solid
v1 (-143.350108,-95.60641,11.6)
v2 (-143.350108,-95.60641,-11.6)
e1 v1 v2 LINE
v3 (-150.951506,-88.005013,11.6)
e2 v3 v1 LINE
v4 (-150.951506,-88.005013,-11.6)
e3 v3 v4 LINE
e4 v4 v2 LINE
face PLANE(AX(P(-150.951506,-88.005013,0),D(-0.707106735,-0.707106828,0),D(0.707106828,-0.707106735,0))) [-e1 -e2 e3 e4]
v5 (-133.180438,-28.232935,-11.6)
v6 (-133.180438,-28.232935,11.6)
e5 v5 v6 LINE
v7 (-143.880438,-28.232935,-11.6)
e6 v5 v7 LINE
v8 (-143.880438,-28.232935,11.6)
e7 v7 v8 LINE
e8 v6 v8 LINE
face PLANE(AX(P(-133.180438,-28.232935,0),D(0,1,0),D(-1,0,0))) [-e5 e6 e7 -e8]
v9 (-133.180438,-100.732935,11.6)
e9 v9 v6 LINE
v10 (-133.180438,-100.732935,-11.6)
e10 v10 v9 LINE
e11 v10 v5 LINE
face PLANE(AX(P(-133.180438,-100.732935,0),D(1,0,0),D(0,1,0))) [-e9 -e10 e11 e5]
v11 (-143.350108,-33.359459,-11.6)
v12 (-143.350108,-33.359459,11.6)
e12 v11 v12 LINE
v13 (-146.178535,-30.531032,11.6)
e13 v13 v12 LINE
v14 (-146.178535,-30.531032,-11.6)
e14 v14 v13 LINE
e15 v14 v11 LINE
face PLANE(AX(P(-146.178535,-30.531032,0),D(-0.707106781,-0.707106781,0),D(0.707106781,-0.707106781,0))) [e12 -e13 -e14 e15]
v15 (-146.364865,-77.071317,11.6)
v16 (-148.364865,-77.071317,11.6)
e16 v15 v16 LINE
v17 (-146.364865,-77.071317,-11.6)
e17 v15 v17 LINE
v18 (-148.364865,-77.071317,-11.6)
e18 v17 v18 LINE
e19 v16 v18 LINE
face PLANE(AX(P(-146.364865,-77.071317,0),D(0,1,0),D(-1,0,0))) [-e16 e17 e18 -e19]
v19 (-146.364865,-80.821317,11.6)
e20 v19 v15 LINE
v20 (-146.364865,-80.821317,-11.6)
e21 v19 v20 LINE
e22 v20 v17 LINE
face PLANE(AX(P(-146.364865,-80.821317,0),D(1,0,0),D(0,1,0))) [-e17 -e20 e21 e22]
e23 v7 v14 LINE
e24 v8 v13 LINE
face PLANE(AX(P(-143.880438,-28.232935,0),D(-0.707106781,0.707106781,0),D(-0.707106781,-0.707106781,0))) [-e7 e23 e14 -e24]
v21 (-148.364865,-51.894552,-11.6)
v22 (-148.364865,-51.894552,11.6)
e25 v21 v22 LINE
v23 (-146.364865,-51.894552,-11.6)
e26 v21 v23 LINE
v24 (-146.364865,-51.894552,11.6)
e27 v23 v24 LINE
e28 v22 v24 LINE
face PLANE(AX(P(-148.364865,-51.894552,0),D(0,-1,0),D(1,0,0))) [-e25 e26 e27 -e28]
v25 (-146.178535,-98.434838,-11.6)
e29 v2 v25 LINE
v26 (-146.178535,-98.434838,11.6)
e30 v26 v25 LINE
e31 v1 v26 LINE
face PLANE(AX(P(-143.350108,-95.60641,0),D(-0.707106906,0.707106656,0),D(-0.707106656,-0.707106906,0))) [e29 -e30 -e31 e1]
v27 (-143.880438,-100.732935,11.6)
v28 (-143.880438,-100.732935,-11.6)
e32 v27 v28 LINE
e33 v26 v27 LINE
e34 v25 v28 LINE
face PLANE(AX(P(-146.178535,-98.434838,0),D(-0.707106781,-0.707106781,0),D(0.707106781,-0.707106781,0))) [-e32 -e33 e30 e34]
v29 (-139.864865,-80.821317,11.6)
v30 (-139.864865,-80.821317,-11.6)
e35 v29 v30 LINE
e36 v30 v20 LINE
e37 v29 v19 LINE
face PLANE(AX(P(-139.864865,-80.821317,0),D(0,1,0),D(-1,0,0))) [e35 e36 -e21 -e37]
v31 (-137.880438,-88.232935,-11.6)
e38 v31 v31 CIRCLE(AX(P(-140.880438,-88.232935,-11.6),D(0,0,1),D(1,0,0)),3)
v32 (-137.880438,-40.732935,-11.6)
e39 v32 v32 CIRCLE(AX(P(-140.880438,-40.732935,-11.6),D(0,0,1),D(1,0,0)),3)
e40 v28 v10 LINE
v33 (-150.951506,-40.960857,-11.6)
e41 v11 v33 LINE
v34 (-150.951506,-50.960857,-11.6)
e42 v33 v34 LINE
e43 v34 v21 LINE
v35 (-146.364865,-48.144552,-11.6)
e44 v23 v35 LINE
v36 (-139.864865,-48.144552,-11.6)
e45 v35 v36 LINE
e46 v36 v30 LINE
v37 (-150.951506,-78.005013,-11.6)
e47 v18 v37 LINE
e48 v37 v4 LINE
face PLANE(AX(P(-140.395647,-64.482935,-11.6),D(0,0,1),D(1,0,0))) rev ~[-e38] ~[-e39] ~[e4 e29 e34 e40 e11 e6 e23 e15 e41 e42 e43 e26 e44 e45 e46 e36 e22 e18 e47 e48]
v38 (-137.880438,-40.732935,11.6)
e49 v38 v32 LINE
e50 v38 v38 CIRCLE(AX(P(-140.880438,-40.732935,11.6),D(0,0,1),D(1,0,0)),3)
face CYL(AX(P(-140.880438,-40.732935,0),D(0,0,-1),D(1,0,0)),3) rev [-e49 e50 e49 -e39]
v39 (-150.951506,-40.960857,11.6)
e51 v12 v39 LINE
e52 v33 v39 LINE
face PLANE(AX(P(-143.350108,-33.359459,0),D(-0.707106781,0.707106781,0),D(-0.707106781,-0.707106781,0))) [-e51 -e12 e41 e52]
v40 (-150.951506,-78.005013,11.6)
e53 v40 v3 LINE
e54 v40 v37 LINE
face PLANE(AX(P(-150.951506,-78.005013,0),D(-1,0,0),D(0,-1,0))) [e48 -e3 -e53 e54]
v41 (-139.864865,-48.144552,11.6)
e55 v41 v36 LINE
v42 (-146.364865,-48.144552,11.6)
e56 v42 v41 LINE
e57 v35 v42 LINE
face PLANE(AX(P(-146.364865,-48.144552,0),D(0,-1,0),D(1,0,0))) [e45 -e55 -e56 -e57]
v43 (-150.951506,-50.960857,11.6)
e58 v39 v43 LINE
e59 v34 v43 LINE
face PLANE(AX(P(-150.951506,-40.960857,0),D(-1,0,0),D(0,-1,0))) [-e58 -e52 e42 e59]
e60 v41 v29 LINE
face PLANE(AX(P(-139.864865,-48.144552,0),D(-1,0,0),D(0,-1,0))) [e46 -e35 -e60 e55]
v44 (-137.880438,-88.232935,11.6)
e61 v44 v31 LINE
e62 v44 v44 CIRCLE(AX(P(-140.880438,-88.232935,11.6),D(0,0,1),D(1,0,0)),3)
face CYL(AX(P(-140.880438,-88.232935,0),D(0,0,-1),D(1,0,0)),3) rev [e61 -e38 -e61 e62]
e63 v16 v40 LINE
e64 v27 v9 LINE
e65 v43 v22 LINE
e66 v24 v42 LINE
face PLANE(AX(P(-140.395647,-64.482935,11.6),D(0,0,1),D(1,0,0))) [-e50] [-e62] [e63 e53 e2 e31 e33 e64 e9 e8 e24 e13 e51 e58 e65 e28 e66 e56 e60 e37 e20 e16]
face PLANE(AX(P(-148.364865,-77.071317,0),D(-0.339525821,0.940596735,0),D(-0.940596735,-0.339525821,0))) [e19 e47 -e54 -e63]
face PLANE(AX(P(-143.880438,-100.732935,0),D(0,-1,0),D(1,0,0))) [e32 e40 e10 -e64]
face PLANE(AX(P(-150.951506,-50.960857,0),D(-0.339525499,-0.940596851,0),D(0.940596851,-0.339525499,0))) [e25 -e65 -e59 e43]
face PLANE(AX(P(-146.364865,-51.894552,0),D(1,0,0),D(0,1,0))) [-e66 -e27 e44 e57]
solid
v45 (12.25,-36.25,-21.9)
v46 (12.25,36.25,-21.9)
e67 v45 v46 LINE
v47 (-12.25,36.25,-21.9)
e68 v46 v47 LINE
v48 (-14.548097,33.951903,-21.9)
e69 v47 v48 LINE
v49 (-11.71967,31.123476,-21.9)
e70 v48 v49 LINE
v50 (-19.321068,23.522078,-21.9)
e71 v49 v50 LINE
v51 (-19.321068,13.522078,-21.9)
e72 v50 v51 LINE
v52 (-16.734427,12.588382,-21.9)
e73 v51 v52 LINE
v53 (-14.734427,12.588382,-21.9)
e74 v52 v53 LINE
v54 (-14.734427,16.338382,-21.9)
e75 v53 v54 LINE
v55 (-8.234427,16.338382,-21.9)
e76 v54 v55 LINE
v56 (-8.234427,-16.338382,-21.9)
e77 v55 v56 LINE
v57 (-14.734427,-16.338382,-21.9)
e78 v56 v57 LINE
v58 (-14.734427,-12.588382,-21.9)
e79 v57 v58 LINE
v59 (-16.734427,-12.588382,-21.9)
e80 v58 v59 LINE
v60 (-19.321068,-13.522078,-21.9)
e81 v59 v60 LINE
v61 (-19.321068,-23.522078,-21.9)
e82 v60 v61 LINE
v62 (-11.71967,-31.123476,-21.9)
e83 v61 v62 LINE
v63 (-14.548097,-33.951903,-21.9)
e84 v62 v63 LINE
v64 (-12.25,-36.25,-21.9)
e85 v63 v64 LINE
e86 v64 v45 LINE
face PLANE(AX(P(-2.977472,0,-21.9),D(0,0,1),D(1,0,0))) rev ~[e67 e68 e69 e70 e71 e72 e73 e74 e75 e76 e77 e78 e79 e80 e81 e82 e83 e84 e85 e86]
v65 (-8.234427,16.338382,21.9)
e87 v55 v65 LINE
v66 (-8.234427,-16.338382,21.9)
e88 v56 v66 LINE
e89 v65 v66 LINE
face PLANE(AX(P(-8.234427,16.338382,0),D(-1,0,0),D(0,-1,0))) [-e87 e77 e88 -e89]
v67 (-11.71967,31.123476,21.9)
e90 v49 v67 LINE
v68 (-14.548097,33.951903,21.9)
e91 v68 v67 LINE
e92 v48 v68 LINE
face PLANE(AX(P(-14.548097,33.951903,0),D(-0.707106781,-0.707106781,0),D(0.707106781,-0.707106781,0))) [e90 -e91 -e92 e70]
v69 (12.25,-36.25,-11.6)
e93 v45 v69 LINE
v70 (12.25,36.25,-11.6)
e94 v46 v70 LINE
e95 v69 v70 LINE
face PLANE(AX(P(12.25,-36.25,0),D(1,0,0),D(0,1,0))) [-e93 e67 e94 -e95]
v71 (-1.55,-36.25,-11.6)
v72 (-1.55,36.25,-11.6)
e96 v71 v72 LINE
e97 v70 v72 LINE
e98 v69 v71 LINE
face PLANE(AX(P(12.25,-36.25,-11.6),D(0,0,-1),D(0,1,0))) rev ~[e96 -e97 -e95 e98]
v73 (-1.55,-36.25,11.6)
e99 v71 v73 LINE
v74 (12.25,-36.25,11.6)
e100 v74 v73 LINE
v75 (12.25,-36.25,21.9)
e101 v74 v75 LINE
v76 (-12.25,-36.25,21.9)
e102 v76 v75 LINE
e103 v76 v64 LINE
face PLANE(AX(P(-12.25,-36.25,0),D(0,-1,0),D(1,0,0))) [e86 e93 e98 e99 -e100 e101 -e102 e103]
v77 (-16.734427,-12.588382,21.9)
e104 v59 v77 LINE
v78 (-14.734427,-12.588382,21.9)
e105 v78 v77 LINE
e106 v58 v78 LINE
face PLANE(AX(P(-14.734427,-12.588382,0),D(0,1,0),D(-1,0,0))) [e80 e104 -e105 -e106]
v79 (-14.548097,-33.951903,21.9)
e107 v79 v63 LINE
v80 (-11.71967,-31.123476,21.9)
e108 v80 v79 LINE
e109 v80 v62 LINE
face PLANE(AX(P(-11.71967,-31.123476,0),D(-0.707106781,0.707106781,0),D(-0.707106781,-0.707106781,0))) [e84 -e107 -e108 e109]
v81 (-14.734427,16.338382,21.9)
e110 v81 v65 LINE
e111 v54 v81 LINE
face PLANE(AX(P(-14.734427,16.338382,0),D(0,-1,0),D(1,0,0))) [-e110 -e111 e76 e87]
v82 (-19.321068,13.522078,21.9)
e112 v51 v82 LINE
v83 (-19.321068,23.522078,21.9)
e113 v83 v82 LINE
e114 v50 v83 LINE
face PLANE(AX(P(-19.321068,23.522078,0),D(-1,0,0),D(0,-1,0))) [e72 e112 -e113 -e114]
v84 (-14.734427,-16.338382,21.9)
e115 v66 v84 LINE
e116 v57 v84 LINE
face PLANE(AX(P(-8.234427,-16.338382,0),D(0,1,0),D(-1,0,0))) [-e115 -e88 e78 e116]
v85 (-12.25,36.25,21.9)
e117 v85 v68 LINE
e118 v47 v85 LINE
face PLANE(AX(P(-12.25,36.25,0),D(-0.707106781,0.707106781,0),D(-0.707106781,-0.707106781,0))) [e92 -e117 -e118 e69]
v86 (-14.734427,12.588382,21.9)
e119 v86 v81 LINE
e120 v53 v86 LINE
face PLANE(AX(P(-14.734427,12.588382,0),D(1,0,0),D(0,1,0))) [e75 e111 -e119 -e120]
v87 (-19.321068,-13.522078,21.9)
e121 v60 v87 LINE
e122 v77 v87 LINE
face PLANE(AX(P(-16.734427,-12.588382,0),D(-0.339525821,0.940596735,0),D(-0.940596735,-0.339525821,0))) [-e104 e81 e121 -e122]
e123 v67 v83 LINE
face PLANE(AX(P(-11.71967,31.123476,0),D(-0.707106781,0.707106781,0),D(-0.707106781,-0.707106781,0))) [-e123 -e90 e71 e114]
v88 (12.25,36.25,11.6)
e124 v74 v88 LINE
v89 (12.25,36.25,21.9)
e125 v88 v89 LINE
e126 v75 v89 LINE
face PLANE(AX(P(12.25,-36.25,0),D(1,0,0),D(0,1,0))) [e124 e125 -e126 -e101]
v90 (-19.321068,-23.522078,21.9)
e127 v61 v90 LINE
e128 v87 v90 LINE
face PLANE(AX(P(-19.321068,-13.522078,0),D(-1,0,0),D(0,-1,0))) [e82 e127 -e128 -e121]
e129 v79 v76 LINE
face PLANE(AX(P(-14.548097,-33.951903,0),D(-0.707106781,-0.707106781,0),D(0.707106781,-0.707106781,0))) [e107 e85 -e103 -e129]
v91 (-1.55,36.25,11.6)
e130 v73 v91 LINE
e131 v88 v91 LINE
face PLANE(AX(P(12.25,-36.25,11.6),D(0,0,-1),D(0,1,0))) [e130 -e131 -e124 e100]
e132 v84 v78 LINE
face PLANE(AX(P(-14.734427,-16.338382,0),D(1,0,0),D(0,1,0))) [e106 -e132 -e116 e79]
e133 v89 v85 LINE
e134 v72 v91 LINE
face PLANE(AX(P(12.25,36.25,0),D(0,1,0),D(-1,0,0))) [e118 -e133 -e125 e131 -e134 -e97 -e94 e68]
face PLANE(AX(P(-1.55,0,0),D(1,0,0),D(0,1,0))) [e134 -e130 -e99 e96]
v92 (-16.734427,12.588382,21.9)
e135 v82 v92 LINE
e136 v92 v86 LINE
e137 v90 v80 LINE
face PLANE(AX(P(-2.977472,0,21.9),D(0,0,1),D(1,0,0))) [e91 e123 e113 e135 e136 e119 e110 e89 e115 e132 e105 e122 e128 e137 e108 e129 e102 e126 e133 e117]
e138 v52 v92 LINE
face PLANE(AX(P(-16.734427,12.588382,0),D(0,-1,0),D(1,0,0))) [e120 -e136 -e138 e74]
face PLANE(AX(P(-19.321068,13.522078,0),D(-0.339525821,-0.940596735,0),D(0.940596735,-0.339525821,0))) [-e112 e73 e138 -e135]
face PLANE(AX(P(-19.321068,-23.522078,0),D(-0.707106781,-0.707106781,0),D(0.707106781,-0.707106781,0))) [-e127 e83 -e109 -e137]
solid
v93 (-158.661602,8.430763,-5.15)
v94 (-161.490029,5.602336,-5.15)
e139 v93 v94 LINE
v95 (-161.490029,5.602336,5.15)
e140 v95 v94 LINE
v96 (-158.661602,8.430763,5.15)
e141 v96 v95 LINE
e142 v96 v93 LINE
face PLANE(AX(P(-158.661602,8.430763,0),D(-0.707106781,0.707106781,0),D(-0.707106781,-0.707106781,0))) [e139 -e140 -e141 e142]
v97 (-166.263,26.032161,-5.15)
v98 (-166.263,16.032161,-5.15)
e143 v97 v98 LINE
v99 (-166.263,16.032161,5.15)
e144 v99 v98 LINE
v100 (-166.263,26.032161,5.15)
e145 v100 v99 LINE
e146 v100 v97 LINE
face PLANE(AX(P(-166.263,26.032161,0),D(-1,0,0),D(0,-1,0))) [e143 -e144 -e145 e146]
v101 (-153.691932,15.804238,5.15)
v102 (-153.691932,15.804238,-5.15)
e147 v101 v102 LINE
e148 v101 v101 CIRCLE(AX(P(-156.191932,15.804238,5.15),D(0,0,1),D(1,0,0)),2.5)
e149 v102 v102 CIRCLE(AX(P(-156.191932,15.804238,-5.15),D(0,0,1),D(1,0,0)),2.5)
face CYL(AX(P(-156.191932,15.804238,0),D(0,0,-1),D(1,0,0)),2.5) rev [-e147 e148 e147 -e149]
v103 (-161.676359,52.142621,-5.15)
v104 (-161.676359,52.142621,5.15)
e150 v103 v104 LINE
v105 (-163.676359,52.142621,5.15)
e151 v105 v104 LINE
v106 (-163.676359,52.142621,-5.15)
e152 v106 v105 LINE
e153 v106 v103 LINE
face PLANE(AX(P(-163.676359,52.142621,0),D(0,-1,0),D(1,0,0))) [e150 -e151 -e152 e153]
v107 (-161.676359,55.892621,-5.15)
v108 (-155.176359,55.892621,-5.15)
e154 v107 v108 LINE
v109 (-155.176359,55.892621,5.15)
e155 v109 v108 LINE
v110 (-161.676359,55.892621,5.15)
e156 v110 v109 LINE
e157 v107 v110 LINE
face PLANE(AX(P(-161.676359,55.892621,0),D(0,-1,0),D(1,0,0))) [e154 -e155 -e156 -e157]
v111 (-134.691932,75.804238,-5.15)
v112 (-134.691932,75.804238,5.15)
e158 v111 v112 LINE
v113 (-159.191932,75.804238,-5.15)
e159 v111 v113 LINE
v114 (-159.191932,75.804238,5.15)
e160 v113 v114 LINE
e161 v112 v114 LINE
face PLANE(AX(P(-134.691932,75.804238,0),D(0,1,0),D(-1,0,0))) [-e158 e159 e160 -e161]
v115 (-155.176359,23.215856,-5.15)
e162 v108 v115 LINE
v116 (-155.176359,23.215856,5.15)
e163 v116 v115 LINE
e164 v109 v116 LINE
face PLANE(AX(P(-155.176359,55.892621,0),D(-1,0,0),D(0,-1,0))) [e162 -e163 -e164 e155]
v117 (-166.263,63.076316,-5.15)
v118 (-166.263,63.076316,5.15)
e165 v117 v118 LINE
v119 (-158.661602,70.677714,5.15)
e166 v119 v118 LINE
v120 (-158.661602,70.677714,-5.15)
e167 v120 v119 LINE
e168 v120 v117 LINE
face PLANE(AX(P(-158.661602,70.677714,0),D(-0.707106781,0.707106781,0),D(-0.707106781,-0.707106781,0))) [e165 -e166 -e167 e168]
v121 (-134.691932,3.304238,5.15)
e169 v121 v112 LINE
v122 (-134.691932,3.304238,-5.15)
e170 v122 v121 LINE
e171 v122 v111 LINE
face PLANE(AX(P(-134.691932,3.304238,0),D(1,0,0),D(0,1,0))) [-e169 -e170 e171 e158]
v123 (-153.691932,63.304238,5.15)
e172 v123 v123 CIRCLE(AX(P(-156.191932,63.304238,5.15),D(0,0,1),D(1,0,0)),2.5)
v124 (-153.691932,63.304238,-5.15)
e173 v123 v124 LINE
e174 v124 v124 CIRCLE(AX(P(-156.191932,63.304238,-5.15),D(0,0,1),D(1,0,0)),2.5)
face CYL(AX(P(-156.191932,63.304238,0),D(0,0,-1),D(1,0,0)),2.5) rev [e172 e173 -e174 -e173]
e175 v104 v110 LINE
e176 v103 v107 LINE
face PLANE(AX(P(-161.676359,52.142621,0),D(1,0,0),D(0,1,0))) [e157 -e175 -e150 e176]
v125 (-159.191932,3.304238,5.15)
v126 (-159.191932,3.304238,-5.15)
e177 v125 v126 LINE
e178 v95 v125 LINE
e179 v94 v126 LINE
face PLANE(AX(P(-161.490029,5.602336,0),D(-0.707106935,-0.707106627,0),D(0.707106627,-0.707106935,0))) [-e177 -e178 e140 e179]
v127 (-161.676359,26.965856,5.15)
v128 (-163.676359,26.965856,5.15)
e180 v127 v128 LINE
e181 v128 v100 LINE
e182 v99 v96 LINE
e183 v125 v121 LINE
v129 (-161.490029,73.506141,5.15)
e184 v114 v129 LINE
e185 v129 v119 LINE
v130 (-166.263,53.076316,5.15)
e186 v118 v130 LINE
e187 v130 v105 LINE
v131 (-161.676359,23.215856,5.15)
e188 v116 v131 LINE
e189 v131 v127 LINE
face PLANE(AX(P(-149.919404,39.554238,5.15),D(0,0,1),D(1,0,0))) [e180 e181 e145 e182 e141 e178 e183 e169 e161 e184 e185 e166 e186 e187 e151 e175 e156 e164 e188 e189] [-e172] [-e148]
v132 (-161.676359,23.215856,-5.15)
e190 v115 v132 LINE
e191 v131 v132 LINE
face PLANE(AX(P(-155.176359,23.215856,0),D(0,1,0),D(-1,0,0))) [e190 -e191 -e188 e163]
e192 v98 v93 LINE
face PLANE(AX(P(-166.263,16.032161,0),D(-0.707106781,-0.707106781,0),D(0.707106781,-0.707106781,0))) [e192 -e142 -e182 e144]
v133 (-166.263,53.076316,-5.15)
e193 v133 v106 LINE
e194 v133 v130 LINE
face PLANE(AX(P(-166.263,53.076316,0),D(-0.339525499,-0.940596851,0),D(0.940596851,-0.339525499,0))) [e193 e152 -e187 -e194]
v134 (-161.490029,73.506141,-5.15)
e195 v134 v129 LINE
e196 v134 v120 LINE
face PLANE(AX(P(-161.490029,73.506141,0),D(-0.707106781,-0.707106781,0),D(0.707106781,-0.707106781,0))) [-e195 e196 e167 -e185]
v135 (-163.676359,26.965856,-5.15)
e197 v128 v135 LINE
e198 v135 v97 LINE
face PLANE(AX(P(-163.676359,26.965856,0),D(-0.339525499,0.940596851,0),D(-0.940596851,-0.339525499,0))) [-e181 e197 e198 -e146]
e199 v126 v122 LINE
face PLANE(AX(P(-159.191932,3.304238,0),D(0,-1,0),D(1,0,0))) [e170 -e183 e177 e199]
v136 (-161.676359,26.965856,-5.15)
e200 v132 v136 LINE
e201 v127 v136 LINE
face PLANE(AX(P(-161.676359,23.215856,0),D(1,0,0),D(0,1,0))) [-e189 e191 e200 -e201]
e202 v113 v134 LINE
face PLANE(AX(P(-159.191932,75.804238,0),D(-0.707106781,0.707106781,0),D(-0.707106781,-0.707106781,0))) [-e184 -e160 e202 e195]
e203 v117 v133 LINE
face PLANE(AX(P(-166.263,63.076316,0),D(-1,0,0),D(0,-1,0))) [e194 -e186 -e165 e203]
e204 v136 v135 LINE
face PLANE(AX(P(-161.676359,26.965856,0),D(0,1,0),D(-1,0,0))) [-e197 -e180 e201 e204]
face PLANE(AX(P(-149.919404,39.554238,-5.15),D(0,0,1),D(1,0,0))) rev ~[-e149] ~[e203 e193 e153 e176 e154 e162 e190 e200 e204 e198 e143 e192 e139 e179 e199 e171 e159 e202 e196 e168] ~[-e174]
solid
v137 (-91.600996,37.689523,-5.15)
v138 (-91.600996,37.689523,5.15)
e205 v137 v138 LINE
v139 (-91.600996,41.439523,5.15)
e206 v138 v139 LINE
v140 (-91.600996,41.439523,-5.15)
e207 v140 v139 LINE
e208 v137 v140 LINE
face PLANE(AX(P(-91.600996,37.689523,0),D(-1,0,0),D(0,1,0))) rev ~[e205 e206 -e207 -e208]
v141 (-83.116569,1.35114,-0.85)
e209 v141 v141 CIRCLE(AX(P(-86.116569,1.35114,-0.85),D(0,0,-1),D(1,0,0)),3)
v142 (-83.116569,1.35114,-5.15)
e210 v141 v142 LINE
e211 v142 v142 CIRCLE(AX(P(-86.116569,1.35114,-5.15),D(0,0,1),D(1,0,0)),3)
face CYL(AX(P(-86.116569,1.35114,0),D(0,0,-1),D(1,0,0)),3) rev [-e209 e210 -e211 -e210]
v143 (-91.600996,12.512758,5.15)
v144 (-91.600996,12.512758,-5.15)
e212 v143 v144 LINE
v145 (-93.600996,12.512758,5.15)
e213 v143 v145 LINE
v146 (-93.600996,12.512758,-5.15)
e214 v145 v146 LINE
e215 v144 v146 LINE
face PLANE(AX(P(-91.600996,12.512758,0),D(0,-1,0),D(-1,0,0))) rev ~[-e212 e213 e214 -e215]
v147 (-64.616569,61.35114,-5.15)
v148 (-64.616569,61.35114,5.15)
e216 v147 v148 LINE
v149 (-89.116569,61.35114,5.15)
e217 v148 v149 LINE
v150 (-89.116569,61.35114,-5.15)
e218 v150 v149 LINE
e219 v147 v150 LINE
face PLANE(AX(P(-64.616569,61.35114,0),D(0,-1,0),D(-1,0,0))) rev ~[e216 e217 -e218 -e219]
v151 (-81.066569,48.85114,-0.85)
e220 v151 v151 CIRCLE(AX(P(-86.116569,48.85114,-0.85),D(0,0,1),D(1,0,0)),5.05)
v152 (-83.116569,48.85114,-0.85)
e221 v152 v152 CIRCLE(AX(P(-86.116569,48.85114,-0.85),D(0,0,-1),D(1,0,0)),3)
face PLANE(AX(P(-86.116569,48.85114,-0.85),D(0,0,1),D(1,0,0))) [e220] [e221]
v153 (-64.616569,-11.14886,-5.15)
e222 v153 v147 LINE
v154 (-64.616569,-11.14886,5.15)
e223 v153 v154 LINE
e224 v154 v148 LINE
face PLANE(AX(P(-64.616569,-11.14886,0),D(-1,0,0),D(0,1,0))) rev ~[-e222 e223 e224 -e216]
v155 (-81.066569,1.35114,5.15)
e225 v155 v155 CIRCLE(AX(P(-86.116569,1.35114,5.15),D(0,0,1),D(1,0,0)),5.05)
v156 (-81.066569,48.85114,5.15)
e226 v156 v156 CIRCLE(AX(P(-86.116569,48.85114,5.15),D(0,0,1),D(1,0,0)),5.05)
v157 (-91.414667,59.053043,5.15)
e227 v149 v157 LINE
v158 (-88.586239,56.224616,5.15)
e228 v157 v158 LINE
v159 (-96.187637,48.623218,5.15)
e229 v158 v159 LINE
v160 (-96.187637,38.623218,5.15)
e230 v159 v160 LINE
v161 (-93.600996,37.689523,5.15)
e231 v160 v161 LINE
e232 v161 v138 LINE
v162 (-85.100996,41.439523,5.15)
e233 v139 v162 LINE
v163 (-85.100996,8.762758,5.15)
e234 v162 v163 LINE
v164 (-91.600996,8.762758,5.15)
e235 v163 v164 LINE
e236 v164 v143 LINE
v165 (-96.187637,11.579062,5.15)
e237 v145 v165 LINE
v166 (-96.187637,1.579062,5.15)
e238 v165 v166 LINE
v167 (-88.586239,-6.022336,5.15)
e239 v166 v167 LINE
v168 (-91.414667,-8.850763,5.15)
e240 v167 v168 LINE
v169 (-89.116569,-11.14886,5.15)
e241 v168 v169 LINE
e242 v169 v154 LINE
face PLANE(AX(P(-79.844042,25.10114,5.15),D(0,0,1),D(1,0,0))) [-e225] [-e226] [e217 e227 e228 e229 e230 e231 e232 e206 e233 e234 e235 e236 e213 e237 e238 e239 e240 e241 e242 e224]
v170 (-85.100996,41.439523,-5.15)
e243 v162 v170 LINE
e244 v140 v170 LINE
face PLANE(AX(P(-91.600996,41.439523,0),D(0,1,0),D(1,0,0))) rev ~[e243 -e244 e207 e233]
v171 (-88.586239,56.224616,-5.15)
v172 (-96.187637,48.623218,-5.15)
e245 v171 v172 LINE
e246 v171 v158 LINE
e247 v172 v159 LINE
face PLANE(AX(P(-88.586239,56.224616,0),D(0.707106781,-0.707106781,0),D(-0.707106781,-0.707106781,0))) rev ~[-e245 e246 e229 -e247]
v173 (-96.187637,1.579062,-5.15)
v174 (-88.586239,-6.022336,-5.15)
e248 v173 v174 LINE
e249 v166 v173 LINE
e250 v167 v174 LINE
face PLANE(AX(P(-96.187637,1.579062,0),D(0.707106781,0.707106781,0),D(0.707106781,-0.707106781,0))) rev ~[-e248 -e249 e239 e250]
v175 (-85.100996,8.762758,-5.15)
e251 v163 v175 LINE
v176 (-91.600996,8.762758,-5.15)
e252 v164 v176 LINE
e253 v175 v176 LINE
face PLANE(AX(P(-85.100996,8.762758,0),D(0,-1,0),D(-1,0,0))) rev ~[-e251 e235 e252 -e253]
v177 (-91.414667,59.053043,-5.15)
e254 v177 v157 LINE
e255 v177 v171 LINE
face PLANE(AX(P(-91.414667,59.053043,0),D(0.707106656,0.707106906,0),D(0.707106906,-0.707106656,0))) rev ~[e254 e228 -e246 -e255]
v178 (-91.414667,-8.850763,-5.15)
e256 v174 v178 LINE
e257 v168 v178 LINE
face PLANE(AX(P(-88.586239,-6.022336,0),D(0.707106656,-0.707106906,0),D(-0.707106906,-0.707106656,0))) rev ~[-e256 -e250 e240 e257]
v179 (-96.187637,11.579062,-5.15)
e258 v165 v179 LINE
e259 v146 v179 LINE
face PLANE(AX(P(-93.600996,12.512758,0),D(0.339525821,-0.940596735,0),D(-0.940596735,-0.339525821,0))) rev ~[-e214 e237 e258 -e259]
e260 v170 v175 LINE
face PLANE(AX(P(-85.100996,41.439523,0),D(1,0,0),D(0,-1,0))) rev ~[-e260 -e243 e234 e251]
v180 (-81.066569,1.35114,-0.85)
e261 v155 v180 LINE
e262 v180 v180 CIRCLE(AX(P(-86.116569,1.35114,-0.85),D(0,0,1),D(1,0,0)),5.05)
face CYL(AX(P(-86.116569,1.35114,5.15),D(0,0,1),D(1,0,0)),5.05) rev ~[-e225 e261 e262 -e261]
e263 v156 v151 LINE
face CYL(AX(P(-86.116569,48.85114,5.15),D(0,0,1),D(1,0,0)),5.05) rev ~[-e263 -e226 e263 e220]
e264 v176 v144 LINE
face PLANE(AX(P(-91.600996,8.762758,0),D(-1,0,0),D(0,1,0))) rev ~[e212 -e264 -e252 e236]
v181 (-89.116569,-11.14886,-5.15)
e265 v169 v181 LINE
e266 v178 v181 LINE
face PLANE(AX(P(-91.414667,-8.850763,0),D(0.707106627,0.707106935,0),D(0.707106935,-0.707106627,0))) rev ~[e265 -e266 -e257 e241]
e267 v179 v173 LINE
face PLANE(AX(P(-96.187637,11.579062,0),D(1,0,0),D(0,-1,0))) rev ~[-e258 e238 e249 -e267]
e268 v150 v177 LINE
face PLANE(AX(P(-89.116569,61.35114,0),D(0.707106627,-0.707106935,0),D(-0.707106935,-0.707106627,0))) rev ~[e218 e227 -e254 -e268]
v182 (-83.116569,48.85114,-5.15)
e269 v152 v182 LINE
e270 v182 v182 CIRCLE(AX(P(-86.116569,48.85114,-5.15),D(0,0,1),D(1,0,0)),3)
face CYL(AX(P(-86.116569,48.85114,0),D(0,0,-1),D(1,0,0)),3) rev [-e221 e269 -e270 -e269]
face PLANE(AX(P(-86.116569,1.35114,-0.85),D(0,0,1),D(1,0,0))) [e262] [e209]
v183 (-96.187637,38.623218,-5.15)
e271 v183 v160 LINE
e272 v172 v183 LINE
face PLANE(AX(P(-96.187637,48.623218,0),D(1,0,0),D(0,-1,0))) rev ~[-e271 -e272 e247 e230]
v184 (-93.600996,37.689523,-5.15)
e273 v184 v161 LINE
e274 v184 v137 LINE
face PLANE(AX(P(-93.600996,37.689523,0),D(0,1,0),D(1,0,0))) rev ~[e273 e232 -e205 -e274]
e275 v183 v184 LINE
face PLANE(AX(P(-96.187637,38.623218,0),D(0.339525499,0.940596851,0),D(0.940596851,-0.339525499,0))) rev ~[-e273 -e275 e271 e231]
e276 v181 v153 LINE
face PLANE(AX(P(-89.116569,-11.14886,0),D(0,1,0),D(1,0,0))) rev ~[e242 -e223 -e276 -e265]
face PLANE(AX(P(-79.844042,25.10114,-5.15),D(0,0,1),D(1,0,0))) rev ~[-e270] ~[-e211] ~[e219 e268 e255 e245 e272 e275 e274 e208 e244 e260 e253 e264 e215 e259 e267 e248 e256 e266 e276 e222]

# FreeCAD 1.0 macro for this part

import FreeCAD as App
import Part
import Sketcher
from FreeCAD import Vector
Q = App.Units.Quantity

doc = App.newDocument("Part")
params = doc.addObject("Spreadsheet::Sheet", "Params")
for row, (alias, value) in enumerate([
    ("sketch1_width", "2 mm"),
    ("sketch1_height", "10 mm"),
    ("sketch1_length", "4 mm"),
    ("sketch1_width2", "24.5 mm"),
    ("sketch1_width3", "6.5 mm"),
    ("pad1_length", "43.8 mm"),
    ("sketch2_width", "72.5 mm"),
    ("sketch2_height", "23.2 mm"),
    ("pocket1_length", "13.8 mm"),
    ("sketch3_diameter", "6 mm"),
    ("sketch3_diameter2", "5 mm"),
    ("sketch3_width", "2 mm"),
    ("sketch3_height", "10 mm"),
    ("sketch3_length", "4.000001 mm"),
    ("pad2_length", "10.3 mm"),
    ("sketch4_diameter", "10.1 mm"),
    ("pocket2_length", "6 mm"),
    ("sketch5_diameter", "6 mm"),
    ("sketch5_width", "2 mm"),
    ("sketch5_height", "10 mm"),
    ("sketch5_length", "4 mm"),
    ("sketch5_width2", "10.7 mm"),
    ("pad3_length", "23.2 mm"),
], start=1):
    params.set(f"A{row}", alias)
    params.set(f"B{row}", "=" + value)
    params.setAlias(f"B{row}", alias)

body = doc.addObject("PartDesign::Body", "Body")

# Sketch on XY plane
sketch1 = body.newObject("Sketcher::SketchObject", "Sketch")
sketch1.AttachmentSupport = (doc.getObject("XY_Plane"), [""])
sketch1.MapMode = "FlatFace"
sketch1.addGeometry([
    Part.LineSegment(Vector(-12.2, -36.2, 0), Vector(12.2, -36.2, 0)),  # 0
    Part.LineSegment(Vector(12.2, -36.2, 0), Vector(12.2, 36.2, 0)),  # 1
    Part.LineSegment(Vector(12.2, 36.2, 0), Vector(-12.2, 36.2, 0)),  # 2
    Part.LineSegment(Vector(-12.2, 36.2, 0), Vector(-14.5, 34, 0)),  # 3
    Part.LineSegment(Vector(-14.5, 34, 0), Vector(-11.7, 31.1, 0)),  # 4
    Part.LineSegment(Vector(-11.7, 31.1, 0), Vector(-19.3, 23.5, 0)),  # 5
    Part.LineSegment(Vector(-19.3, 23.5, 0), Vector(-19.3, 13.5, 0)),  # 6
    Part.LineSegment(Vector(-19.3, 13.5, 0), Vector(-16.7, 12.6, 0)),  # 7
    Part.LineSegment(Vector(-16.7, 12.6, 0), Vector(-14.7, 12.6, 0)),  # 8
    Part.LineSegment(Vector(-14.7, 12.6, 0), Vector(-14.7, 16.3, 0)),  # 9
    Part.LineSegment(Vector(-14.7, 16.3, 0), Vector(-8.2, 16.3, 0)),  # 10
    Part.LineSegment(Vector(-8.2, 16.3, 0), Vector(-8.2, -16.3, 0)),  # 11
    Part.LineSegment(Vector(-8.2, -16.3, 0), Vector(-14.7, -16.3, 0)),  # 12
    Part.LineSegment(Vector(-14.7, -16.3, 0), Vector(-14.7, -12.6, 0)),  # 13
    Part.LineSegment(Vector(-14.7, -12.6, 0), Vector(-16.7, -12.6, 0)),  # 14
    Part.LineSegment(Vector(-16.7, -12.6, 0), Vector(-19.3, -13.5, 0)),  # 15
    Part.LineSegment(Vector(-19.3, -13.5, 0), Vector(-19.3, -23.5, 0)),  # 16
    Part.LineSegment(Vector(-19.3, -23.5, 0), Vector(-11.7, -31.1, 0)),  # 17
    Part.LineSegment(Vector(-11.7, -31.1, 0), Vector(-14.5, -34, 0)),  # 18
    Part.LineSegment(Vector(-14.5, -34, 0), Vector(-12.2, -36.2, 0)),  # 19
], False)
sketch1.addConstraint([
    Sketcher.Constraint("Coincident", 0, 2, 1, 1),
    Sketcher.Constraint("Coincident", 1, 2, 2, 1),
    Sketcher.Constraint("Coincident", 2, 2, 3, 1),
    Sketcher.Constraint("Coincident", 3, 2, 4, 1),
    Sketcher.Constraint("Coincident", 4, 2, 5, 1),
    Sketcher.Constraint("Coincident", 5, 2, 6, 1),
    Sketcher.Constraint("Coincident", 6, 2, 7, 1),
    Sketcher.Constraint("Coincident", 7, 2, 8, 1),
    Sketcher.Constraint("Coincident", 8, 2, 9, 1),
    Sketcher.Constraint("Coincident", 9, 2, 10, 1),
    Sketcher.Constraint("Coincident", 10, 2, 11, 1),
    Sketcher.Constraint("Coincident", 11, 2, 12, 1),
    Sketcher.Constraint("Coincident", 12, 2, 13, 1),
    Sketcher.Constraint("Coincident", 13, 2, 14, 1),
    Sketcher.Constraint("Coincident", 14, 2, 15, 1),
    Sketcher.Constraint("Coincident", 15, 2, 16, 1),
    Sketcher.Constraint("Coincident", 16, 2, 17, 1),
    Sketcher.Constraint("Coincident", 17, 2, 18, 1),
    Sketcher.Constraint("Coincident", 18, 2, 19, 1),
    Sketcher.Constraint("Coincident", 19, 2, 0, 1),
    Sketcher.Constraint("Horizontal", 0),
    Sketcher.Constraint("Vertical", 1),
    Sketcher.Constraint("Horizontal", 2),
    Sketcher.Constraint("Vertical", 6),
    Sketcher.Constraint("Horizontal", 8),
    Sketcher.Constraint("Vertical", 9),
    Sketcher.Constraint("Horizontal", 10),
    Sketcher.Constraint("Vertical", 11),
    Sketcher.Constraint("Horizontal", 12),
    Sketcher.Constraint("Vertical", 13),
    Sketcher.Constraint("Horizontal", 14),
    Sketcher.Constraint("Vertical", 16),
    Sketcher.Constraint("Symmetric", 0, 2, 2, 2, -1, 1),
    Sketcher.Constraint("Symmetric", 9, 2, 12, 2, -1),
    Sketcher.Constraint("Symmetric", 7, 2, 14, 2, -1),
    Sketcher.Constraint("Symmetric", 6, 2, 15, 2, -1),
    Sketcher.Constraint("Symmetric", 4, 2, 17, 2, -1),
    Sketcher.Constraint("Symmetric", 3, 2, 18, 2, -1),
    Sketcher.Constraint("Perpendicular", 3, 4),
    Sketcher.Constraint("Perpendicular", 4, 5),
    Sketcher.Constraint("Perpendicular", 5, 17),
    Sketcher.Constraint("Perpendicular", 17, 18),
    Sketcher.Constraint("Perpendicular", 18, 19),
    Sketcher.Constraint("DistanceX", 8, 1, 8, 2, Q("2 mm")),
    Sketcher.Constraint("DistanceY", 6, 2, 6, 1, Q("10 mm")),
    Sketcher.Constraint("Distance", 4, Q("4 mm")),
    Sketcher.Constraint("DistanceX", 0, 1, 0, 2, Q("24.5 mm")),
    Sketcher.Constraint("DistanceX", 10, 1, 10, 2, Q("6.5 mm")),
    Sketcher.Constraint("DistanceY", 1, 1, 1, 2, Q("72.5 mm")),
    Sketcher.Constraint("DistanceY", 9, 1, 9, 2, Q("3.75 mm")),
    Sketcher.Constraint("Distance", 3, Q("3.25 mm")),
    Sketcher.Constraint("Distance", 5, Q("10.75 mm")),
    Sketcher.Constraint("Distance", 7, Q("2.75 mm")),
    Sketcher.Constraint("DistanceY", 11, 2, 11, 1, Q("32.676764 mm")),
])
sketch1.setExpression("Constraints[43]", "Params.sketch1_width")
sketch1.setExpression("Constraints[44]", "Params.sketch1_height")
sketch1.setExpression("Constraints[45]", "Params.sketch1_length")
sketch1.setExpression("Constraints[46]", "Params.sketch1_width2")
sketch1.setExpression("Constraints[47]", "Params.sketch1_width3")
pad1 = body.newObject("PartDesign::Pad", "Pad")
pad1.Profile = sketch1
pad1.setExpression("Length", "Params.pad1_length")
pad1.Midplane = True

# Sketch on YZ plane
sketch2 = body.newObject("Sketcher::SketchObject", "Sketch001")
sketch2.AttachmentSupport = (doc.getObject("YZ_Plane"), [""])
sketch2.MapMode = "FlatFace"
sketch2.AttachmentOffset = App.Placement(Vector(0, 0, 12.25), App.Rotation())
sketch2.addGeometry([
    Part.LineSegment(Vector(-36, 12, 0), Vector(-36, -12, 0)),
    Part.LineSegment(Vector(-36, -12, 0), Vector(36, -12, 0)),
    Part.LineSegment(Vector(36, -12, 0), Vector(36, 12, 0)),
    Part.LineSegment(Vector(36, 12, 0), Vector(-36, 12, 0)),
], False)
sketch2.addConstraint([
    Sketcher.Constraint("Coincident", 0, 2, 1, 1),
    Sketcher.Constraint("Coincident", 1, 2, 2, 1),
    Sketcher.Constraint("Coincident", 2, 2, 3, 1),
    Sketcher.Constraint("Coincident", 3, 2, 0, 1),
    Sketcher.Constraint("Vertical", 0),
    Sketcher.Constraint("Horizontal", 1),
    Sketcher.Constraint("Vertical", 2),
    Sketcher.Constraint("Horizontal", 3),
    Sketcher.Constraint("Symmetric", 0, 2, 2, 2, -1, 1),
    Sketcher.Constraint("DistanceX", 1, 1, 1, 2, Q("72.5 mm")),
    Sketcher.Constraint("DistanceY", 0, 2, 0, 1, Q("23.2 mm")),
])
sketch2.setExpression("Constraints[9]", "Params.sketch2_width")
sketch2.setExpression("Constraints[10]", "Params.sketch2_height")
pocket1 = body.newObject("PartDesign::Pocket", "Pocket")
pocket1.Profile = sketch2
pocket1.setExpression("Length", "Params.pocket1_length")
body2 = doc.addObject("PartDesign::Body", "Body001")
body2.AllowCompound = True

# Sketch on XY plane
sketch3 = body2.newObject("Sketcher::SketchObject", "Sketch002")
sketch3.AttachmentSupport = (doc.getObject("XY_Plane001"), [""])
sketch3.MapMode = "FlatFace"
sketch3.addGeometry([
    Part.LineSegment(Vector(-89.1, -11.1, 0), Vector(-64.6, -11.1, 0)),  # 0
    Part.LineSegment(Vector(-64.6, -11.1, 0), Vector(-64.6, 61.4, 0)),  # 1
    Part.LineSegment(Vector(-64.6, 61.4, 0), Vector(-89.1, 61.4, 0)),  # 2
    Part.LineSegment(Vector(-89.1, 61.4, 0), Vector(-91.4, 59.1, 0)),  # 3
    Part.LineSegment(Vector(-91.4, 59.1, 0), Vector(-88.6, 56.2, 0)),  # 4
    Part.LineSegment(Vector(-88.6, 56.2, 0), Vector(-96.2, 48.6, 0)),  # 5
    Part.LineSegment(Vector(-96.2, 48.6, 0), Vector(-96.2, 38.6, 0)),  # 6
    Part.LineSegment(Vector(-96.2, 38.6, 0), Vector(-93.6, 37.7, 0)),  # 7
    Part.LineSegment(Vector(-93.6, 37.7, 0), Vector(-91.6, 37.7, 0)),  # 8
    Part.LineSegment(Vector(-91.6, 37.7, 0), Vector(-91.6, 41.4, 0)),  # 9
    Part.LineSegment(Vector(-91.6, 41.4, 0), Vector(-85.1, 41.4, 0)),  # 10
    Part.LineSegment(Vector(-85.1, 41.4, 0), Vector(-85.1, 8.8, 0)),  # 11
    Part.LineSegment(Vector(-85.1, 8.8, 0), Vector(-91.6, 8.8, 0)),  # 12
    Part.LineSegment(Vector(-91.6, 8.8, 0), Vector(-91.6, 12.5, 0)),  # 13
    Part.LineSegment(Vector(-91.6, 12.5, 0), Vector(-93.6, 12.5, 0)),  # 14
    Part.LineSegment(Vector(-93.6, 12.5, 0), Vector(-96.2, 11.6, 0)),  # 15
    Part.LineSegment(Vector(-96.2, 11.6, 0), Vector(-96.2, 1.6, 0)),  # 16
    Part.LineSegment(Vector(-96.2, 1.6, 0), Vector(-88.6, -6, 0)),  # 17
    Part.LineSegment(Vector(-88.6, -6, 0), Vector(-91.4, -8.9, 0)),  # 18
    Part.LineSegment(Vector(-91.4, -8.9, 0), Vector(-89.1, -11.1, 0)),  # 19
    Part.Circle(Vector(-86.1, 1.4, 0), Vector(0, 0, 1), 3),  # 20
    Part.Circle(Vector(-86.1, 48.9, 0), Vector(0, 0, 1), 3),  # 21
    Part.LineSegment(Vector(-159.2, 3.3, 0), Vector(-134.7, 3.3, 0)),  # 22
    Part.LineSegment(Vector(-134.7, 3.3, 0), Vector(-134.7, 75.8, 0)),  # 23
    Part.LineSegment(Vector(-134.7, 75.8, 0), Vector(-159.2, 75.8, 0)),  # 24
    Part.LineSegment(Vector(-159.2, 75.8, 0), Vector(-161.5, 73.5, 0)),  # 25
    Part.LineSegment(Vector(-161.5, 73.5, 0), Vector(-158.7, 70.7, 0)),  # 26
    Part.LineSegment(Vector(-158.7, 70.7, 0), Vector(-166.3, 63.1, 0)),  # 27
    Part.LineSegment(Vector(-166.3, 63.1, 0), Vector(-166.3, 53.1, 0)),  # 28
    Part.LineSegment(Vector(-166.3, 53.1, 0), Vector(-163.7, 52.1, 0)),  # 29
    Part.LineSegment(Vector(-163.7, 52.1, 0), Vector(-161.7, 52.1, 0)),  # 30
    Part.LineSegment(Vector(-161.7, 52.1, 0), Vector(-161.7, 55.9, 0)),  # 31
    Part.LineSegment(Vector(-161.7, 55.9, 0), Vector(-155.2, 55.9, 0)),  # 32
    Part.LineSegment(Vector(-155.2, 55.9, 0), Vector(-155.2, 23.2, 0)),  # 33
    Part.LineSegment(Vector(-155.2, 23.2, 0), Vector(-161.7, 23.2, 0)),  # 34
    Part.LineSegment(Vector(-161.7, 23.2, 0), Vector(-161.7, 27, 0)),  # 35
    Part.LineSegment(Vector(-161.7, 27, 0), Vector(-163.7, 27, 0)),  # 36
    Part.LineSegment(Vector(-163.7, 27, 0), Vector(-166.3, 26, 0)),  # 37
    Part.LineSegment(Vector(-166.3, 26, 0), Vector(-166.3, 16, 0)),  # 38
    Part.LineSegment(Vector(-166.3, 16, 0), Vector(-158.7, 8.4, 0)),  # 39
    Part.LineSegment(Vector(-158.7, 8.4, 0), Vector(-161.5, 5.6, 0)),  # 40
    Part.LineSegment(Vector(-161.5, 5.6, 0), Vector(-159.2, 3.3, 0)),  # 41
    Part.Circle(Vector(-156.2, 15.8, 0), Vector(0, 0, 1), 2.5),  # 42
    Part.Circle(Vector(-156.2, 63.3, 0), Vector(0, 0, 1), 2.5),  # 43
], False)
sketch3.addConstraint([
    Sketcher.Constraint("Coincident", 0, 2, 1, 1),
    Sketcher.Constraint("Coincident", 1, 2, 2, 1),
    Sketcher.Constraint("Coincident", 2, 2, 3, 1),
    Sketcher.Constraint("Coincident", 3, 2, 4, 1),
    Sketcher.Constraint("Coincident", 4, 2, 5, 1),
    Sketcher.Constraint("Coincident", 5, 2, 6, 1),
    Sketcher.Constraint("Coincident", 6, 2, 7, 1),
    Sketcher.Constraint("Coincident", 7, 2, 8, 1),
    Sketcher.Constraint("Coincident", 8, 2, 9, 1),
    Sketcher.Constraint("Coincident", 9, 2, 10, 1),
    Sketcher.Constraint("Coincident", 10, 2, 11, 1),
    Sketcher.Constraint("Coincident", 11, 2, 12, 1),
    Sketcher.Constraint("Coincident", 12, 2, 13, 1),
    Sketcher.Constraint("Coincident", 13, 2, 14, 1),
    Sketcher.Constraint("Coincident", 14, 2, 15, 1),
    Sketcher.Constraint("Coincident", 15, 2, 16, 1),
    Sketcher.Constraint("Coincident", 16, 2, 17, 1),
    Sketcher.Constraint("Coincident", 17, 2, 18, 1),
    Sketcher.Constraint("Coincident", 18, 2, 19, 1),
    Sketcher.Constraint("Coincident", 19, 2, 0, 1),
    Sketcher.Constraint("Coincident", 22, 2, 23, 1),
    Sketcher.Constraint("Coincident", 23, 2, 24, 1),
    Sketcher.Constraint("Coincident", 24, 2, 25, 1),
    Sketcher.Constraint("Coincident", 25, 2, 26, 1),
    Sketcher.Constraint("Coincident", 26, 2, 27, 1),
    Sketcher.Constraint("Coincident", 27, 2, 28, 1),
    Sketcher.Constraint("Coincident", 28, 2, 29, 1),
    Sketcher.Constraint("Coincident", 29, 2, 30, 1),
    Sketcher.Constraint("Coincident", 30, 2, 31, 1),
    Sketcher.Constraint("Coincident", 31, 2, 32, 1),
    Sketcher.Constraint("Coincident", 32, 2, 33, 1),
    Sketcher.Constraint("Coincident", 33, 2, 34, 1),
    Sketcher.Constraint("Coincident", 34, 2, 35, 1),
    Sketcher.Constraint("Coincident", 35, 2, 36, 1),
    Sketcher.Constraint("Coincident", 36, 2, 37, 1),
    Sketcher.Constraint("Coincident", 37, 2, 38, 1),
    Sketcher.Constraint("Coincident", 38, 2, 39, 1),
    Sketcher.Constraint("Coincident", 39, 2, 40, 1),
    Sketcher.Constraint("Coincident", 40, 2, 41, 1),
    Sketcher.Constraint("Coincident", 41, 2, 22, 1),
    Sketcher.Constraint("Horizontal", 0),
    Sketcher.Constraint("Vertical", 1),
    Sketcher.Constraint("Horizontal", 2),
    Sketcher.Constraint("Vertical", 6),
    Sketcher.Constraint("Horizontal", 8),
    Sketcher.Constraint("Vertical", 9),
    Sketcher.Constraint("Horizontal", 10),
    Sketcher.Constraint("Vertical", 11),
    Sketcher.Constraint("Horizontal", 12),
    Sketcher.Constraint("Vertical", 13),
    Sketcher.Constraint("Horizontal", 14),
    Sketcher.Constraint("Vertical", 16),
    Sketcher.Constraint("Horizontal", 22),
    Sketcher.Constraint("Vertical", 23),
    Sketcher.Constraint("Horizontal", 24),
    Sketcher.Constraint("Vertical", 28),
    Sketcher.Constraint("Horizontal", 30),
    Sketcher.Constraint("Vertical", 31),
    Sketcher.Constraint("Horizontal", 32),
    Sketcher.Constraint("Vertical", 33),
    Sketcher.Constraint("Horizontal", 34),
    Sketcher.Constraint("Vertical", 35),
    Sketcher.Constraint("Horizontal", 36),
    Sketcher.Constraint("Vertical", 38),
    Sketcher.Constraint("Equal", 20, 21),
    Sketcher.Constraint("Equal", 42, 43),
    Sketcher.Constraint("Perpendicular", 3, 4),
    Sketcher.Constraint("Perpendicular", 4, 5),
    Sketcher.Constraint("Perpendicular", 5, 17),
    Sketcher.Constraint("Perpendicular", 17, 18),
    Sketcher.Constraint("Perpendicular", 18, 19),
    Sketcher.Constraint("Perpendicular", 19, 25),
    Sketcher.Constraint("Perpendicular", 25, 26),
    Sketcher.Constraint("Perpendicular", 26, 27),
    Sketcher.Constraint("Parallel", 7, 29),
    Sketcher.Constraint("Parallel", 15, 37),
    Sketcher.Constraint("Perpendicular", 27, 39),
    Sketcher.Constraint("Perpendicular", 39, 40),
    Sketcher.Constraint("Perpendicular", 40, 41),
    Sketcher.Constraint("Vertical", 20, 3, 21, 3),
    Sketcher.Constraint("Vertical", 42, 3, 43, 3),
    Sketcher.Constraint("Vertical", 9, 2, 12, 2),
    Sketcher.Constraint("Vertical", 7, 2, 14, 2),
    Sketcher.Constraint("Vertical", 6, 2, 15, 2),
    Sketcher.Constraint("Vertical", 4, 2, 17, 2),
    Sketcher.Constraint("Vertical", 3, 2, 18, 2),
    Sketcher.Constraint("Vertical", 2, 2, 19, 2),
    Sketcher.Constraint("Vertical", 31, 2, 34, 2),
    Sketcher.Constraint("Vertical", 29, 2, 36, 2),
    Sketcher.Constraint("Vertical", 28, 2, 37, 2),
    Sketcher.Constraint("Vertical", 26, 2, 39, 2),
    Sketcher.Constraint("Vertical", 25, 2, 40, 2),
    Sketcher.Constraint("Vertical", 24, 2, 41, 2),
    Sketcher.Constraint("Equal", 2, 22),
    Sketcher.Constraint("Equal", 14, 30),
    Sketcher.Constraint("Equal", 12, 32),
    Sketcher.Constraint("Equal", 9, 13),
    Sketcher.Constraint("Equal", 6, 16),
    Sketcher.Constraint("Equal", 1, 23),
    Sketcher.Constraint("Equal", 16, 28),
    Sketcher.Constraint("Equal", 13, 31),
    Sketcher.Constraint("Equal", 11, 33),
    Sketcher.Constraint("Equal", 31, 35),
    Sketcher.Constraint("Equal", 28, 38),
    Sketcher.Constraint("Equal", 7, 15),
    Sketcher.Constraint("Equal", 5, 17),
    Sketcher.Constraint("Equal", 19, 25),
    Sketcher.Constraint("Equal", 18, 26),
    Sketcher.Constraint("Equal", 17, 27),
    Sketcher.Constraint("Diameter", 20, Q("6 mm")),
    Sketcher.Constraint("Diameter", 42, Q("5 mm")),
    Sketcher.Constraint("DistanceX", 8, 1, 8, 2, Q("2 mm")),
    Sketcher.Constraint("DistanceY", 6, 2, 6, 1, Q("10 mm")),
    Sketcher.Constraint("Distance", 4, Q("4.000001 mm")),
    Sketcher.Constraint("DistanceX", 0, 1, 0, 2, Q("24.5 mm")),
    Sketcher.Constraint("DistanceX", 10, 1, 10, 2, Q("6.5 mm")),
    Sketcher.Constraint("DistanceY", 1, 1, 1, 2, Q("72.5 mm")),
    Sketcher.Constraint("DistanceY", 0, 2, 21, 3, Q("60 mm")),
    Sketcher.Constraint("DistanceY", 20, 3, 1, 2, Q("60 mm")),
    Sketcher.Constraint("DistanceX", 2, 2, 21, 3, Q("3 mm")),
    Sketcher.Constraint("DistanceX", 24, 2, 43, 3, Q("3 mm")),
    Sketcher.Constraint("DistanceY", 42, 3, 24, 2, Q("60 mm")),
    Sketcher.Constraint("DistanceY", 9, 1, 9, 2, Q("3.75 mm")),
    Sketcher.Constraint("DistanceY", 42, 3, 43, 3, Q("47.5 mm")),
    Sketcher.Constraint("Distance", 3, Q("3.250001 mm")),
    Sketcher.Constraint("Distance", 5, Q("10.75 mm")),
    Sketcher.Constraint("Distance", 7, Q("2.75 mm")),
    Sketcher.Constraint("DistanceX", 27, 2, -1, 1, Q("166.263 mm")),
    Sketcher.Constraint("DistanceY", 20, 3, 42, 3, Q("14.453098 mm")),
    Sketcher.Constraint("DistanceY", 11, 2, 11, 1, Q("32.676765 mm")),
    Sketcher.Constraint("DistanceX", 20, 3, -1, 1, Q("86.116569 mm")),
    Sketcher.Constraint("DistanceY", -1, 1, 20, 3, Q("1.35114 mm")),
])
sketch3.setExpression("Constraints[109]", "Params.sketch3_diameter")
sketch3.setExpression("Constraints[110]", "Params.sketch3_diameter2")
sketch3.setExpression("Constraints[111]", "Params.sketch3_width")
sketch3.setExpression("Constraints[112]", "Params.sketch3_height")
sketch3.setExpression("Constraints[113]", "Params.sketch3_length")
pad2 = body2.newObject("PartDesign::Pad", "Pad001")
pad2.Profile = sketch3
pad2.setExpression("Length", "Params.pad2_length")
pad2.Midplane = True

# Sketch on XY plane
sketch4 = body2.newObject("Sketcher::SketchObject", "Sketch003")
sketch4.AttachmentSupport = (doc.getObject("XY_Plane001"), [""])
sketch4.MapMode = "FlatFace"
sketch4.AttachmentOffset = App.Placement(Vector(0, 0, 5.15), App.Rotation())
sketch4.addGeometry([
    Part.Circle(Vector(-86, 49, 0), Vector(0, 0, 1), 5),
    Part.Circle(Vector(-86, 1, 0), Vector(0, 0, 1), 5),
], False)
sketch4.addConstraint([
    Sketcher.Constraint("Equal", 0, 1),
    Sketcher.Constraint("Vertical", 0, 3, 1, 3),
    Sketcher.Constraint("Diameter", 0, Q("10.1 mm")),
    Sketcher.Constraint("DistanceY", 1, 3, 0, 3, Q("47.5 mm")),
    Sketcher.Constraint("DistanceX", 0, 3, -1, 1, Q("86.116569 mm")),
    Sketcher.Constraint("DistanceY", -1, 1, 0, 3, Q("48.85114 mm")),
])
sketch4.setExpression("Constraints[2]", "Params.sketch4_diameter")
pocket2 = body2.newObject("PartDesign::Pocket", "Pocket001")
pocket2.Profile = sketch4
pocket2.setExpression("Length", "Params.pocket2_length")
body3 = doc.addObject("PartDesign::Body", "Body002")

# Sketch on XY plane
sketch5 = body3.newObject("Sketcher::SketchObject", "Sketch004")
sketch5.AttachmentSupport = (doc.getObject("XY_Plane002"), [""])
sketch5.MapMode = "FlatFace"
sketch5.addGeometry([
    Part.LineSegment(Vector(-143.9, -100.7, 0), Vector(-133.2, -100.7, 0)),  # 0
    Part.LineSegment(Vector(-133.2, -100.7, 0), Vector(-133.2, -28.2, 0)),  # 1
    Part.LineSegment(Vector(-133.2, -28.2, 0), Vector(-143.9, -28.2, 0)),  # 2
    Part.LineSegment(Vector(-143.9, -28.2, 0), Vector(-146.2, -30.5, 0)),  # 3
    Part.LineSegment(Vector(-146.2, -30.5, 0), Vector(-143.4, -33.4, 0)),  # 4
    Part.LineSegment(Vector(-143.4, -33.4, 0), Vector(-151, -41, 0)),  # 5
    Part.LineSegment(Vector(-151, -41, 0), Vector(-151, -51, 0)),  # 6
    Part.LineSegment(Vector(-151, -51, 0), Vector(-148.4, -51.9, 0)),  # 7
    Part.LineSegment(Vector(-148.4, -51.9, 0), Vector(-146.4, -51.9, 0)),  # 8
    Part.LineSegment(Vector(-146.4, -51.9, 0), Vector(-146.4, -48.1, 0)),  # 9
    Part.LineSegment(Vector(-146.4, -48.1, 0), Vector(-139.9, -48.1, 0)),  # 10
    Part.LineSegment(Vector(-139.9, -48.1, 0), Vector(-139.9, -80.8, 0)),  # 11
    Part.LineSegment(Vector(-139.9, -80.8, 0), Vector(-146.4, -80.8, 0)),  # 12
    Part.LineSegment(Vector(-146.4, -80.8, 0), Vector(-146.4, -77.1, 0)),  # 13
    Part.LineSegment(Vector(-146.4, -77.1, 0), Vector(-148.4, -77.1, 0)),  # 14
    Part.LineSegment(Vector(-148.4, -77.1, 0), Vector(-151, -78, 0)),  # 15
    Part.LineSegment(Vector(-151, -78, 0), Vector(-151, -88, 0)),  # 16
    Part.LineSegment(Vector(-151, -88, 0), Vector(-143.4, -95.6, 0)),  # 17
    Part.LineSegment(Vector(-143.4, -95.6, 0), Vector(-146.2, -98.4, 0)),  # 18
    Part.LineSegment(Vector(-146.2, -98.4, 0), Vector(-143.9, -100.7, 0)),  # 19
    Part.Circle(Vector(-140.9, -88.2, 0), Vector(0, 0, 1), 3),  # 20
    Part.Circle(Vector(-140.9, -40.7, 0), Vector(0, 0, 1), 3),  # 21
], False)
sketch5.addConstraint([
    Sketcher.Constraint("Coincident", 0, 2, 1, 1),
    Sketcher.Constraint("Coincident", 1, 2, 2, 1),
    Sketcher.Constraint("Coincident", 2, 2, 3, 1),
    Sketcher.Constraint("Coincident", 3, 2, 4, 1),
    Sketcher.Constraint("Coincident", 4, 2, 5, 1),
    Sketcher.Constraint("Coincident", 5, 2, 6, 1),
    Sketcher.Constraint("Coincident", 6, 2, 7, 1),
    Sketcher.Constraint("Coincident", 7, 2, 8, 1),
    Sketcher.Constraint("Coincident", 8, 2, 9, 1),
    Sketcher.Constraint("Coincident", 9, 2, 10, 1),
    Sketcher.Constraint("Coincident", 10, 2, 11, 1),
    Sketcher.Constraint("Coincident", 11, 2, 12, 1),
    Sketcher.Constraint("Coincident", 12, 2, 13, 1),
    Sketcher.Constraint("Coincident", 13, 2, 14, 1),
    Sketcher.Constraint("Coincident", 14, 2, 15, 1),
    Sketcher.Constraint("Coincident", 15, 2, 16, 1),
    Sketcher.Constraint("Coincident", 16, 2, 17, 1),
    Sketcher.Constraint("Coincident", 17, 2, 18, 1),
    Sketcher.Constraint("Coincident", 18, 2, 19, 1),
    Sketcher.Constraint("Coincident", 19, 2, 0, 1),
    Sketcher.Constraint("Horizontal", 0),
    Sketcher.Constraint("Vertical", 1),
    Sketcher.Constraint("Horizontal", 2),
    Sketcher.Constraint("Vertical", 6),
    Sketcher.Constraint("Horizontal", 8),
    Sketcher.Constraint("Vertical", 9),
    Sketcher.Constraint("Horizontal", 10),
    Sketcher.Constraint("Vertical", 11),
    Sketcher.Constraint("Horizontal", 12),
    Sketcher.Constraint("Vertical", 13),
    Sketcher.Constraint("Horizontal", 14),
    Sketcher.Constraint("Vertical", 16),
    Sketcher.Constraint("Equal", 20, 21),
    Sketcher.Constraint("Perpendicular", 3, 4),
    Sketcher.Constraint("Perpendicular", 4, 5),
    Sketcher.Constraint("Perpendicular", 5, 17),
    Sketcher.Constraint("Perpendicular", 17, 18),
    Sketcher.Constraint("Perpendicular", 18, 19),
    Sketcher.Constraint("Vertical", 20, 3, 21, 3),
    Sketcher.Constraint("Vertical", 9, 2, 12, 2),
    Sketcher.Constraint("Vertical", 7, 2, 14, 2),
    Sketcher.Constraint("Vertical", 6, 2, 15, 2),
    Sketcher.Constraint("Vertical", 4, 2, 17, 2),
    Sketcher.Constraint("Vertical", 3, 2, 18, 2),
    Sketcher.Constraint("Vertical", 2, 2, 19, 2),
    Sketcher.Constraint("Equal", 9, 13),
    Sketcher.Constraint("Equal", 6, 16),
    Sketcher.Constraint("Equal", 7, 15),
    Sketcher.Constraint("Equal", 5, 17),
    Sketcher.Constraint("Diameter", 20, Q("6 mm")),
    Sketcher.Constraint("DistanceX", 8, 1, 8, 2, Q("2 mm")),
    Sketcher.Constraint("DistanceY", 6, 2, 6, 1, Q("10 mm")),
    Sketcher.Constraint("Distance", 4, Q("4 mm")),
    Sketcher.Constraint("DistanceX", 0, 1, 0, 2, Q("10.7 mm")),
    Sketcher.Constraint("DistanceX", 10, 1, 10, 2, Q("6.5 mm")),
    Sketcher.Constraint("DistanceY", 1, 1, 1, 2, Q("72.5 mm")),
    Sketcher.Constraint("DistanceY", 0, 2, 21, 3, Q("60 mm")),
    Sketcher.Constraint("DistanceY", 20, 3, 1, 2, Q("60 mm")),
    Sketcher.Constraint("DistanceX", 2, 2, 21, 3, Q("3 mm")),
    Sketcher.Constraint("DistanceY", 9, 1, 9, 2, Q("3.75 mm")),
    Sketcher.Constraint("Distance", 3, Q("3.25 mm")),
    Sketcher.Constraint("Distance", 5, Q("10.75 mm")),
    Sketcher.Constraint("Distance", 7, Q("2.75 mm")),
    Sketcher.Constraint("DistanceY", 11, 2, 11, 1, Q("32.676765 mm")),
    Sketcher.Constraint("DistanceX", 20, 3, -1, 1, Q("140.880438 mm")),
    Sketcher.Constraint("DistanceY", 3, 2, -1, 1, Q("30.531032 mm")),
])
sketch5.setExpression("Constraints[49]", "Params.sketch5_diameter")
sketch5.setExpression("Constraints[50]", "Params.sketch5_width")
sketch5.setExpression("Constraints[51]", "Params.sketch5_height")
sketch5.setExpression("Constraints[52]", "Params.sketch5_length")
sketch5.setExpression("Constraints[53]", "Params.sketch5_width2")
pad3 = body3.newObject("PartDesign::Pad", "Pad002")
pad3.Profile = sketch5
pad3.setExpression("Length", "Params.pad3_length")
pad3.Midplane = True

doc.recompute()
